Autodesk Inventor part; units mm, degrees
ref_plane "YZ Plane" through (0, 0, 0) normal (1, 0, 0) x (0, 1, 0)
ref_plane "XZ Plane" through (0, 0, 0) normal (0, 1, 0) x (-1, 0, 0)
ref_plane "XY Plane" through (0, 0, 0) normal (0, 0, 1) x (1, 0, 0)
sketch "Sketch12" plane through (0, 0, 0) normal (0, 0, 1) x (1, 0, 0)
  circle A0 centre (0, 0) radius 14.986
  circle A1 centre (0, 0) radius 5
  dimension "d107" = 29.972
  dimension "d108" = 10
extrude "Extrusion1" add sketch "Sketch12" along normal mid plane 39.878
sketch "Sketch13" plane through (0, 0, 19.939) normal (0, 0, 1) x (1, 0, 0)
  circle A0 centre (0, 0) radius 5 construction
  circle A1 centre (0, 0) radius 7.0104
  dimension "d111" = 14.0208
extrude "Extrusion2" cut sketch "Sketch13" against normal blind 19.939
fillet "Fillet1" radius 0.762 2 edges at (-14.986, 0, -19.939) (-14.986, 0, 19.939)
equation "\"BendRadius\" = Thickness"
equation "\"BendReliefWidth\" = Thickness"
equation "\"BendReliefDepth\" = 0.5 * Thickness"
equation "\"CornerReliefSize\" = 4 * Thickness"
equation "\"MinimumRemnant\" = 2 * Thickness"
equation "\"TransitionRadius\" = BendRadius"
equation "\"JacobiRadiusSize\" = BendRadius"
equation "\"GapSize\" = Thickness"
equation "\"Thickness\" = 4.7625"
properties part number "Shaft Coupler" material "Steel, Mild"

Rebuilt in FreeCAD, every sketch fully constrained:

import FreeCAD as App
import Part
import Sketcher
Q = App.Units.Quantity


def edges_at(feature, points):
    """Names of the edges that pass closest to the given points."""
    edges = feature.Shape.Edges
    near = lambda p: min(range(len(edges)), key=lambda i: edges[i].distToShape(Part.Vertex(*p))[0])
    return sorted({f"Edge{near(p) + 1}" for p in points})

doc = App.newDocument("Part")
body = doc.addObject("PartDesign::Body", "Body")

sketch1 = doc.addObject("Sketcher::SketchObject", "Sketch")
body.addObject(sketch1)
sketch1.AttachmentSupport = (doc.XY_Plane, [""])
sketch1.MapMode = "FlatFace"
sketch1.addGeometry([
    Part.Circle(App.Vector(0, 0, 0), App.Vector(0, 0, 1), 15),
    Part.Circle(App.Vector(0, 0, 0), App.Vector(0, 0, 1), 5),
], False)
sketch1.addConstraint([
    Sketcher.Constraint("Coincident", 0, 3, -1, 1),
    Sketcher.Constraint("Coincident", 1, 3, -1, 1),
    Sketcher.Constraint("Diameter", 0, Q("1.18 in")),
    Sketcher.Constraint("Diameter", 1, Q("0.3937 in")),
])
pad1 = doc.addObject("PartDesign::Pad", "Pad")
body.addObject(pad1)
pad1.Profile = sketch1
pad1.Length = Q("1.57 in")
pad1.Midplane = True

sketch2 = doc.addObject("Sketcher::SketchObject", "Sketch001")
body.addObject(sketch2)
sketch2.AttachmentSupport = (doc.XY_Plane, [""])
sketch2.MapMode = "FlatFace"
sketch2.AttachmentOffset = App.Placement(App.Vector(0, 0, 0.785 * 25.4), App.Rotation())
sketch2.addGeometry(Part.Circle(App.Vector(0, 0, 0), App.Vector(0, 0, 1), 7), False)
sketch2.addConstraint([
    Sketcher.Constraint("Coincident", 0, 3, -1, 1),
    Sketcher.Constraint("Diameter", 0, Q("0.552 in")),
])
pocket1 = doc.addObject("PartDesign::Pocket", "Pocket")
body.addObject(pocket1)
pocket1.Profile = sketch2
pocket1.Length = Q("0.785 in")
doc.recompute()

fillet = doc.addObject("PartDesign::Fillet", "Fillet")
body.addObject(fillet)
fillet.Base = (pocket1, edges_at(pocket1, [(-14.986, 0, -19.939), (-14.986, 0, 19.939)]))
fillet.Radius = Q("0.03 in")

doc.recompute()
